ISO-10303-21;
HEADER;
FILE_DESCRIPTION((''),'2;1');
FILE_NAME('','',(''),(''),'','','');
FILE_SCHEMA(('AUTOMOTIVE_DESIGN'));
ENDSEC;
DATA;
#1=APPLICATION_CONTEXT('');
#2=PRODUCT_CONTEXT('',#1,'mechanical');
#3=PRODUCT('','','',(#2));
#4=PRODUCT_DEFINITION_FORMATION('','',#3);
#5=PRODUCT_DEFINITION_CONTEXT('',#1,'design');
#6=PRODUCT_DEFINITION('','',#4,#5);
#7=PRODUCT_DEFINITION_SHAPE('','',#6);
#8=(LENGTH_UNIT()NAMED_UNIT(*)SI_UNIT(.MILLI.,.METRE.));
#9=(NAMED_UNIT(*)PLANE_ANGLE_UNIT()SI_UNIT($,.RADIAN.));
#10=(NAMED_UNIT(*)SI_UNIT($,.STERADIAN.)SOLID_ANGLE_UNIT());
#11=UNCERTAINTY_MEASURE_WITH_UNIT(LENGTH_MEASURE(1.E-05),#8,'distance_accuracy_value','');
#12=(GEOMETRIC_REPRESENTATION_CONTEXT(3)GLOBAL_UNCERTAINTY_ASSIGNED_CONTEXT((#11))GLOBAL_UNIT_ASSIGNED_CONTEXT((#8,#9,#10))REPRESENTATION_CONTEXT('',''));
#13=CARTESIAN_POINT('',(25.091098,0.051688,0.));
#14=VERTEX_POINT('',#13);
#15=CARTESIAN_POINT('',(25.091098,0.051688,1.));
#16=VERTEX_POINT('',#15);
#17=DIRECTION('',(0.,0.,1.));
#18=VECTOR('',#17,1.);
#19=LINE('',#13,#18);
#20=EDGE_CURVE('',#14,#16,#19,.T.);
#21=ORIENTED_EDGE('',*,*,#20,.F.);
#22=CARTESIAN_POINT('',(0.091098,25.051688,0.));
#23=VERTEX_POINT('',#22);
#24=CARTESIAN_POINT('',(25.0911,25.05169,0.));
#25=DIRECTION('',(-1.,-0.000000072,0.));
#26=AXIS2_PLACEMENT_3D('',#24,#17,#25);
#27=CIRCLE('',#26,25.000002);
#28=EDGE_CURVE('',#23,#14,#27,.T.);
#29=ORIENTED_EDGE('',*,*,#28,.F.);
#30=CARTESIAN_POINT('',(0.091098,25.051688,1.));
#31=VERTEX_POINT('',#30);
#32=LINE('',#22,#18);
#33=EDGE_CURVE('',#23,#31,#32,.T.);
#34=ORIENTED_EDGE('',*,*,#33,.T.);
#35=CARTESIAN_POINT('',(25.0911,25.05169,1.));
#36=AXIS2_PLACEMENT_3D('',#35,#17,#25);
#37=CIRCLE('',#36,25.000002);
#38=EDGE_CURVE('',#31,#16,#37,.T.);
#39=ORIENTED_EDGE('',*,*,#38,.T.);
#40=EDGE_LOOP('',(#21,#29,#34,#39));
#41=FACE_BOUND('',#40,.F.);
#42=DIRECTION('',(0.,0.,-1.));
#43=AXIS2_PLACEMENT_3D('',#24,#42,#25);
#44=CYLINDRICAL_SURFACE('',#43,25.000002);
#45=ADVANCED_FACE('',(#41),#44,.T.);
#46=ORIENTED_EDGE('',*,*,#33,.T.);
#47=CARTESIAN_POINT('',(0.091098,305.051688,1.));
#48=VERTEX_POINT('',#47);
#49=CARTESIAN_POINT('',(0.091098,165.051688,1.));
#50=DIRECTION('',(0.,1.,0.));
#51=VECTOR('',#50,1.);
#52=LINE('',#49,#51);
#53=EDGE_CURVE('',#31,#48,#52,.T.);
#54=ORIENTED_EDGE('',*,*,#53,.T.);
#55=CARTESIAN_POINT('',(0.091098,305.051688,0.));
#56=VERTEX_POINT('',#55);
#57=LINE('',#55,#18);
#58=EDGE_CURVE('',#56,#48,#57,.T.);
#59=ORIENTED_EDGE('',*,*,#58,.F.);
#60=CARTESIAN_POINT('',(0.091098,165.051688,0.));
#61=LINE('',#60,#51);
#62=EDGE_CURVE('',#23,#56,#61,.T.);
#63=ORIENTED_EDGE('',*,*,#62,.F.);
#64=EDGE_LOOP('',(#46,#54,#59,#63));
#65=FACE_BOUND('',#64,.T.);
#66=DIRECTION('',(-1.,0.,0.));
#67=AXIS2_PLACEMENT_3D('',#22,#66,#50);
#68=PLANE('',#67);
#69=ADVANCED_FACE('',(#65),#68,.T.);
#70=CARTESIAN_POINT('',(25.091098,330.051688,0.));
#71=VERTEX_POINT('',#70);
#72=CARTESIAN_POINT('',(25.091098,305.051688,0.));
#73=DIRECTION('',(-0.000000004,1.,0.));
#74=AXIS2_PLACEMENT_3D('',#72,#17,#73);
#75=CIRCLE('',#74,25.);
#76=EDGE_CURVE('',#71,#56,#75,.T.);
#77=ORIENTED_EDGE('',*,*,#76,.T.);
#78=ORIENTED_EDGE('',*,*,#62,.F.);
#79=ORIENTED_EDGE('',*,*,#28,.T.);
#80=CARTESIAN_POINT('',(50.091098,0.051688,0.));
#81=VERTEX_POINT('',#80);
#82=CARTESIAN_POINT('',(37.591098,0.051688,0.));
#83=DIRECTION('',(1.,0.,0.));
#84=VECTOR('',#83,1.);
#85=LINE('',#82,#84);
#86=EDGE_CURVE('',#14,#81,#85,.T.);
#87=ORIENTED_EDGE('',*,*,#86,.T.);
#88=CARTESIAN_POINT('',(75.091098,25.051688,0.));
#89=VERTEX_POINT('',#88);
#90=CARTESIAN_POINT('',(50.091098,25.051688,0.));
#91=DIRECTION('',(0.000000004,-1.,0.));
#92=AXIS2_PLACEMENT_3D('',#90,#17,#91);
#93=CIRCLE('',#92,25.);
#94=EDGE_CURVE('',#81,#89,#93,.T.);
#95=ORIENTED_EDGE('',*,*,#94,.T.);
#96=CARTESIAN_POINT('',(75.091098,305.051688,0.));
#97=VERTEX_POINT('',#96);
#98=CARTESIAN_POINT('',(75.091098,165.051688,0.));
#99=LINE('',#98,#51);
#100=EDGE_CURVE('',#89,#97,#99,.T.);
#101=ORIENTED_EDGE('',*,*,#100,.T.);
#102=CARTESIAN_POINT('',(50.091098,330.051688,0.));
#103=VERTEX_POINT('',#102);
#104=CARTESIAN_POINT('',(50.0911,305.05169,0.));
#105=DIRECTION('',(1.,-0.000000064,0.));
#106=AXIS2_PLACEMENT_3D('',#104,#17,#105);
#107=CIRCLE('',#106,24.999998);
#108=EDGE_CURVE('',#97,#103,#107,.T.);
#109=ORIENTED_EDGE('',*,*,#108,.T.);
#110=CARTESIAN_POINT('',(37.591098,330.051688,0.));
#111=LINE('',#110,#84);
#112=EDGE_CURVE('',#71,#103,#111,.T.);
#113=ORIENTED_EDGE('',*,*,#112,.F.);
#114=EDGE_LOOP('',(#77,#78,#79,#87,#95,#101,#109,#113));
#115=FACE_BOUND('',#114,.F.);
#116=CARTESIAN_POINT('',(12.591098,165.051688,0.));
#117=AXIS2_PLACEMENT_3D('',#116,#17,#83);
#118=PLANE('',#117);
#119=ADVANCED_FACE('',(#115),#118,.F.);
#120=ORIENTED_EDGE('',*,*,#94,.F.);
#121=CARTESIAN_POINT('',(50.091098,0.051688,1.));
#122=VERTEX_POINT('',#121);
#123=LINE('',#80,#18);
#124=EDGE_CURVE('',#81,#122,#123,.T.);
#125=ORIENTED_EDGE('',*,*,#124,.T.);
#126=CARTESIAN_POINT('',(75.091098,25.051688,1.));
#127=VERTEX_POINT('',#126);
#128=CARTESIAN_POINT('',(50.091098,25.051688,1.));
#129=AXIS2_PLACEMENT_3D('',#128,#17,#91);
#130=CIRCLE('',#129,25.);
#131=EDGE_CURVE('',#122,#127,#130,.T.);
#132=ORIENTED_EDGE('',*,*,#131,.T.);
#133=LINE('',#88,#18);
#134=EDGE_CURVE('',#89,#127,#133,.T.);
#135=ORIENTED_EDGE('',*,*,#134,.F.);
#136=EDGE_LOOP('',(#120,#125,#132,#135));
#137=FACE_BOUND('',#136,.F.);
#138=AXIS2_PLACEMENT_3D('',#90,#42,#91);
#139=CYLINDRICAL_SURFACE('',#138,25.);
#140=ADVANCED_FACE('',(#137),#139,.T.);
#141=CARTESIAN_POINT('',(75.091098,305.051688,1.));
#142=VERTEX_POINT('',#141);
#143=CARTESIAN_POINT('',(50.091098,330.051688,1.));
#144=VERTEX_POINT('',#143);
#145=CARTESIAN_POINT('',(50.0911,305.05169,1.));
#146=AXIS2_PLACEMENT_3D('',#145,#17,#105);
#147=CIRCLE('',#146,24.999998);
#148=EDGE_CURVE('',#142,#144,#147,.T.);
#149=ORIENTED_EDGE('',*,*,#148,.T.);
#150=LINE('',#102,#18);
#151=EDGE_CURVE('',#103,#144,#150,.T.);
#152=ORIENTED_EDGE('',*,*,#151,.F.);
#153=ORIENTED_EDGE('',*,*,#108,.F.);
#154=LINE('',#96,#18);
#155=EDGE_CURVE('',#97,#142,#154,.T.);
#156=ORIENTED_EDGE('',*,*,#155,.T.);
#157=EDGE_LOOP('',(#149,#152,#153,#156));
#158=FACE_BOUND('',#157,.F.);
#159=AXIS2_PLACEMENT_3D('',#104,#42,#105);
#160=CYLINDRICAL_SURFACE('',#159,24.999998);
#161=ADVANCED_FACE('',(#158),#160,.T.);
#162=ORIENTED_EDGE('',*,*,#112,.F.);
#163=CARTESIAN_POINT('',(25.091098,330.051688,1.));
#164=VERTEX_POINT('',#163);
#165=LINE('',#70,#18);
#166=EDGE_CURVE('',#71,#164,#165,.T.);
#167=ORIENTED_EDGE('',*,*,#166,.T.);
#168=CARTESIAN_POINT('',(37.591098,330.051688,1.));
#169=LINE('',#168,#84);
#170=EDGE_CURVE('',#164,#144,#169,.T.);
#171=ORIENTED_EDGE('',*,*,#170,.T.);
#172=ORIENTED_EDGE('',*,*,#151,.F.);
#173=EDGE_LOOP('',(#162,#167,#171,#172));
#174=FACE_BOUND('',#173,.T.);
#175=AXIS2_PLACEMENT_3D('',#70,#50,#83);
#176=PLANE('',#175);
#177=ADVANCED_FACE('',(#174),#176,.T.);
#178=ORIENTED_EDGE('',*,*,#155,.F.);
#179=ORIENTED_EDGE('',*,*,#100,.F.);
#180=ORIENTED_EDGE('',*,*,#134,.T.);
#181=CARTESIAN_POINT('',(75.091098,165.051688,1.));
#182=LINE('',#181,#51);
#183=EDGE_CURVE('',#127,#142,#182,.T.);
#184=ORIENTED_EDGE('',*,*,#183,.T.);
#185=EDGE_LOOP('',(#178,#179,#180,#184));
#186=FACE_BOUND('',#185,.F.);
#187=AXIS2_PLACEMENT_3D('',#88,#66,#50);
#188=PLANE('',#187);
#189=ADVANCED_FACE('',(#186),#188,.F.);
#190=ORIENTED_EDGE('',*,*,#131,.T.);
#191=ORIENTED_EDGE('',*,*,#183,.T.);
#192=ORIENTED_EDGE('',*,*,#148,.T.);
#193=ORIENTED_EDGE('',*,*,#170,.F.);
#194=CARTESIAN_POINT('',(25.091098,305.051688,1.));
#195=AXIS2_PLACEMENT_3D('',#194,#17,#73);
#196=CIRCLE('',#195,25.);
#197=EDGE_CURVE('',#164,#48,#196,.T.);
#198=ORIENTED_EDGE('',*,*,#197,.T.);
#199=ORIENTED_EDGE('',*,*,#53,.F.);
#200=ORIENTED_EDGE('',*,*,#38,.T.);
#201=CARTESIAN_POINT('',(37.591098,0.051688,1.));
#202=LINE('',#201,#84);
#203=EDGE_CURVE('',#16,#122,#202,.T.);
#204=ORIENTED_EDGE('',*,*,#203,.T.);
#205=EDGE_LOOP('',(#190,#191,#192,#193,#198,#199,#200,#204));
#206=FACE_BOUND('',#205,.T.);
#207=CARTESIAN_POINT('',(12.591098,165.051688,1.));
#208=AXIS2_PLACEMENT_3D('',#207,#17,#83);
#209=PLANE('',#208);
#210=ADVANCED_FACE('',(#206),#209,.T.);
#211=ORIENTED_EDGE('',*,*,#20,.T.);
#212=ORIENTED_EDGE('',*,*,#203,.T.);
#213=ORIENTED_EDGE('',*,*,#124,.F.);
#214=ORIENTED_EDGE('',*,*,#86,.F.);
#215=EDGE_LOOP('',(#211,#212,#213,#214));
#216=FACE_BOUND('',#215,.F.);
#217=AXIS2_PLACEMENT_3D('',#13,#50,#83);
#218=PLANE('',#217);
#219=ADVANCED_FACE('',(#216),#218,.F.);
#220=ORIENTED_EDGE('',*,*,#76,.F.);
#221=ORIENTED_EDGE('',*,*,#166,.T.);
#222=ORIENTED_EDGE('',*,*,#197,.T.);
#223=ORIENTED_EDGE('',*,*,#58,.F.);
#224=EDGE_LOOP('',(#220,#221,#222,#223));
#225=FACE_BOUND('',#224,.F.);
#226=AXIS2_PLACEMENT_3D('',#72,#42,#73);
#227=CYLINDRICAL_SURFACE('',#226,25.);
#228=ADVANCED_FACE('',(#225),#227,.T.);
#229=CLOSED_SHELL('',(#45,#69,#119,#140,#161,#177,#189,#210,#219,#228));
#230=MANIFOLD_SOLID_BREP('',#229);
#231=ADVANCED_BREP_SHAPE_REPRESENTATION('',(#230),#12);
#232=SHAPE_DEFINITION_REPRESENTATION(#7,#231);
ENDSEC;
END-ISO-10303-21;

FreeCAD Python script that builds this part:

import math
import FreeCAD as App
import Part
import Sketcher

V = App.Vector
Q = App.Units.Quantity

doc = App.newDocument("Part")
body = doc.addObject("PartDesign::Body", "Body")

# Sketch on XY plane
sketch1 = doc.addObject("Sketcher::SketchObject", "Sketch")
body.addObject(sketch1)
sketch1.AttachmentSupport = (doc.XY_Plane, [""])
sketch1.MapMode = "FlatFace"
sketch1.addGeometry([
    Part.LineSegment(V(0.091098, 305.051688, 0), V(0.091098, 25.051688, 0)),  # 0
    Part.ArcOfCircle(Part.Circle(V(25.0911, 25.05169, 0), V(0, 0, 1), 25.000002), math.radians(-179.999996), math.radians(-90.000004)),  # 1
    Part.LineSegment(V(25.091098, 0.051688, 0), V(50.091098, 0.051688, 0)),  # 2
    Part.ArcOfCircle(Part.Circle(V(50.091098, 25.051688, 0), V(0, 0, 1), 25), math.radians(-90), math.radians(0)),  # 3
    Part.LineSegment(V(75.091098, 25.051688, 0), V(75.091098, 305.051688, 0)),  # 4
    Part.ArcOfCircle(Part.Circle(V(50.0911, 305.05169, 0), V(0, 0, 1), 24.999998), math.radians(-0.000004), math.radians(90.000004)),  # 5
    Part.LineSegment(V(50.091098, 330.051688, 0), V(25.091098, 330.051688, 0)),  # 6
    Part.ArcOfCircle(Part.Circle(V(25.091098, 305.051688, 0), V(0, 0, 1), 25), math.radians(90), math.radians(180)),  # 7
], False)
sketch1.addConstraint([
    Sketcher.Constraint("Tangent", 0, 2, 1, 1),
    Sketcher.Constraint("Tangent", 1, 2, 2, 1),
    Sketcher.Constraint("Tangent", 2, 2, 3, 1),
    Sketcher.Constraint("Tangent", 3, 2, 4, 1),
    Sketcher.Constraint("Tangent", 4, 2, 5, 1),
    Sketcher.Constraint("Tangent", 5, 2, 6, 1),
    Sketcher.Constraint("Tangent", 6, 2, 7, 1),
    Sketcher.Constraint("Tangent", 7, 2, 0, 1),
    Sketcher.Constraint("Vertical", 0),
    Sketcher.Constraint("Horizontal", 2),
    Sketcher.Constraint("Vertical", 4),
    Sketcher.Constraint("Horizontal", 6),
    Sketcher.Constraint("Equal", 1, 3),
    Sketcher.Constraint("Equal", 3, 5),
    Sketcher.Constraint("Equal", 5, 7),
    Sketcher.Constraint("Radius", 1, Q("25.000002 mm")),
    Sketcher.Constraint("DistanceX", 2, 1, 2, 2, Q("25 mm")),
    Sketcher.Constraint("DistanceY", 0, 2, 0, 1, Q("280 mm")),
    Sketcher.Constraint("DistanceX", -1, 1, 1, 3, Q("25.0911 mm")),
    Sketcher.Constraint("DistanceY", -1, 1, 1, 3, Q("25.05169 mm")),
])
pad1 = doc.addObject("PartDesign::Pad", "Pad")
body.addObject(pad1)
pad1.Profile = sketch1
pad1.Length = 1

doc.recompute()
